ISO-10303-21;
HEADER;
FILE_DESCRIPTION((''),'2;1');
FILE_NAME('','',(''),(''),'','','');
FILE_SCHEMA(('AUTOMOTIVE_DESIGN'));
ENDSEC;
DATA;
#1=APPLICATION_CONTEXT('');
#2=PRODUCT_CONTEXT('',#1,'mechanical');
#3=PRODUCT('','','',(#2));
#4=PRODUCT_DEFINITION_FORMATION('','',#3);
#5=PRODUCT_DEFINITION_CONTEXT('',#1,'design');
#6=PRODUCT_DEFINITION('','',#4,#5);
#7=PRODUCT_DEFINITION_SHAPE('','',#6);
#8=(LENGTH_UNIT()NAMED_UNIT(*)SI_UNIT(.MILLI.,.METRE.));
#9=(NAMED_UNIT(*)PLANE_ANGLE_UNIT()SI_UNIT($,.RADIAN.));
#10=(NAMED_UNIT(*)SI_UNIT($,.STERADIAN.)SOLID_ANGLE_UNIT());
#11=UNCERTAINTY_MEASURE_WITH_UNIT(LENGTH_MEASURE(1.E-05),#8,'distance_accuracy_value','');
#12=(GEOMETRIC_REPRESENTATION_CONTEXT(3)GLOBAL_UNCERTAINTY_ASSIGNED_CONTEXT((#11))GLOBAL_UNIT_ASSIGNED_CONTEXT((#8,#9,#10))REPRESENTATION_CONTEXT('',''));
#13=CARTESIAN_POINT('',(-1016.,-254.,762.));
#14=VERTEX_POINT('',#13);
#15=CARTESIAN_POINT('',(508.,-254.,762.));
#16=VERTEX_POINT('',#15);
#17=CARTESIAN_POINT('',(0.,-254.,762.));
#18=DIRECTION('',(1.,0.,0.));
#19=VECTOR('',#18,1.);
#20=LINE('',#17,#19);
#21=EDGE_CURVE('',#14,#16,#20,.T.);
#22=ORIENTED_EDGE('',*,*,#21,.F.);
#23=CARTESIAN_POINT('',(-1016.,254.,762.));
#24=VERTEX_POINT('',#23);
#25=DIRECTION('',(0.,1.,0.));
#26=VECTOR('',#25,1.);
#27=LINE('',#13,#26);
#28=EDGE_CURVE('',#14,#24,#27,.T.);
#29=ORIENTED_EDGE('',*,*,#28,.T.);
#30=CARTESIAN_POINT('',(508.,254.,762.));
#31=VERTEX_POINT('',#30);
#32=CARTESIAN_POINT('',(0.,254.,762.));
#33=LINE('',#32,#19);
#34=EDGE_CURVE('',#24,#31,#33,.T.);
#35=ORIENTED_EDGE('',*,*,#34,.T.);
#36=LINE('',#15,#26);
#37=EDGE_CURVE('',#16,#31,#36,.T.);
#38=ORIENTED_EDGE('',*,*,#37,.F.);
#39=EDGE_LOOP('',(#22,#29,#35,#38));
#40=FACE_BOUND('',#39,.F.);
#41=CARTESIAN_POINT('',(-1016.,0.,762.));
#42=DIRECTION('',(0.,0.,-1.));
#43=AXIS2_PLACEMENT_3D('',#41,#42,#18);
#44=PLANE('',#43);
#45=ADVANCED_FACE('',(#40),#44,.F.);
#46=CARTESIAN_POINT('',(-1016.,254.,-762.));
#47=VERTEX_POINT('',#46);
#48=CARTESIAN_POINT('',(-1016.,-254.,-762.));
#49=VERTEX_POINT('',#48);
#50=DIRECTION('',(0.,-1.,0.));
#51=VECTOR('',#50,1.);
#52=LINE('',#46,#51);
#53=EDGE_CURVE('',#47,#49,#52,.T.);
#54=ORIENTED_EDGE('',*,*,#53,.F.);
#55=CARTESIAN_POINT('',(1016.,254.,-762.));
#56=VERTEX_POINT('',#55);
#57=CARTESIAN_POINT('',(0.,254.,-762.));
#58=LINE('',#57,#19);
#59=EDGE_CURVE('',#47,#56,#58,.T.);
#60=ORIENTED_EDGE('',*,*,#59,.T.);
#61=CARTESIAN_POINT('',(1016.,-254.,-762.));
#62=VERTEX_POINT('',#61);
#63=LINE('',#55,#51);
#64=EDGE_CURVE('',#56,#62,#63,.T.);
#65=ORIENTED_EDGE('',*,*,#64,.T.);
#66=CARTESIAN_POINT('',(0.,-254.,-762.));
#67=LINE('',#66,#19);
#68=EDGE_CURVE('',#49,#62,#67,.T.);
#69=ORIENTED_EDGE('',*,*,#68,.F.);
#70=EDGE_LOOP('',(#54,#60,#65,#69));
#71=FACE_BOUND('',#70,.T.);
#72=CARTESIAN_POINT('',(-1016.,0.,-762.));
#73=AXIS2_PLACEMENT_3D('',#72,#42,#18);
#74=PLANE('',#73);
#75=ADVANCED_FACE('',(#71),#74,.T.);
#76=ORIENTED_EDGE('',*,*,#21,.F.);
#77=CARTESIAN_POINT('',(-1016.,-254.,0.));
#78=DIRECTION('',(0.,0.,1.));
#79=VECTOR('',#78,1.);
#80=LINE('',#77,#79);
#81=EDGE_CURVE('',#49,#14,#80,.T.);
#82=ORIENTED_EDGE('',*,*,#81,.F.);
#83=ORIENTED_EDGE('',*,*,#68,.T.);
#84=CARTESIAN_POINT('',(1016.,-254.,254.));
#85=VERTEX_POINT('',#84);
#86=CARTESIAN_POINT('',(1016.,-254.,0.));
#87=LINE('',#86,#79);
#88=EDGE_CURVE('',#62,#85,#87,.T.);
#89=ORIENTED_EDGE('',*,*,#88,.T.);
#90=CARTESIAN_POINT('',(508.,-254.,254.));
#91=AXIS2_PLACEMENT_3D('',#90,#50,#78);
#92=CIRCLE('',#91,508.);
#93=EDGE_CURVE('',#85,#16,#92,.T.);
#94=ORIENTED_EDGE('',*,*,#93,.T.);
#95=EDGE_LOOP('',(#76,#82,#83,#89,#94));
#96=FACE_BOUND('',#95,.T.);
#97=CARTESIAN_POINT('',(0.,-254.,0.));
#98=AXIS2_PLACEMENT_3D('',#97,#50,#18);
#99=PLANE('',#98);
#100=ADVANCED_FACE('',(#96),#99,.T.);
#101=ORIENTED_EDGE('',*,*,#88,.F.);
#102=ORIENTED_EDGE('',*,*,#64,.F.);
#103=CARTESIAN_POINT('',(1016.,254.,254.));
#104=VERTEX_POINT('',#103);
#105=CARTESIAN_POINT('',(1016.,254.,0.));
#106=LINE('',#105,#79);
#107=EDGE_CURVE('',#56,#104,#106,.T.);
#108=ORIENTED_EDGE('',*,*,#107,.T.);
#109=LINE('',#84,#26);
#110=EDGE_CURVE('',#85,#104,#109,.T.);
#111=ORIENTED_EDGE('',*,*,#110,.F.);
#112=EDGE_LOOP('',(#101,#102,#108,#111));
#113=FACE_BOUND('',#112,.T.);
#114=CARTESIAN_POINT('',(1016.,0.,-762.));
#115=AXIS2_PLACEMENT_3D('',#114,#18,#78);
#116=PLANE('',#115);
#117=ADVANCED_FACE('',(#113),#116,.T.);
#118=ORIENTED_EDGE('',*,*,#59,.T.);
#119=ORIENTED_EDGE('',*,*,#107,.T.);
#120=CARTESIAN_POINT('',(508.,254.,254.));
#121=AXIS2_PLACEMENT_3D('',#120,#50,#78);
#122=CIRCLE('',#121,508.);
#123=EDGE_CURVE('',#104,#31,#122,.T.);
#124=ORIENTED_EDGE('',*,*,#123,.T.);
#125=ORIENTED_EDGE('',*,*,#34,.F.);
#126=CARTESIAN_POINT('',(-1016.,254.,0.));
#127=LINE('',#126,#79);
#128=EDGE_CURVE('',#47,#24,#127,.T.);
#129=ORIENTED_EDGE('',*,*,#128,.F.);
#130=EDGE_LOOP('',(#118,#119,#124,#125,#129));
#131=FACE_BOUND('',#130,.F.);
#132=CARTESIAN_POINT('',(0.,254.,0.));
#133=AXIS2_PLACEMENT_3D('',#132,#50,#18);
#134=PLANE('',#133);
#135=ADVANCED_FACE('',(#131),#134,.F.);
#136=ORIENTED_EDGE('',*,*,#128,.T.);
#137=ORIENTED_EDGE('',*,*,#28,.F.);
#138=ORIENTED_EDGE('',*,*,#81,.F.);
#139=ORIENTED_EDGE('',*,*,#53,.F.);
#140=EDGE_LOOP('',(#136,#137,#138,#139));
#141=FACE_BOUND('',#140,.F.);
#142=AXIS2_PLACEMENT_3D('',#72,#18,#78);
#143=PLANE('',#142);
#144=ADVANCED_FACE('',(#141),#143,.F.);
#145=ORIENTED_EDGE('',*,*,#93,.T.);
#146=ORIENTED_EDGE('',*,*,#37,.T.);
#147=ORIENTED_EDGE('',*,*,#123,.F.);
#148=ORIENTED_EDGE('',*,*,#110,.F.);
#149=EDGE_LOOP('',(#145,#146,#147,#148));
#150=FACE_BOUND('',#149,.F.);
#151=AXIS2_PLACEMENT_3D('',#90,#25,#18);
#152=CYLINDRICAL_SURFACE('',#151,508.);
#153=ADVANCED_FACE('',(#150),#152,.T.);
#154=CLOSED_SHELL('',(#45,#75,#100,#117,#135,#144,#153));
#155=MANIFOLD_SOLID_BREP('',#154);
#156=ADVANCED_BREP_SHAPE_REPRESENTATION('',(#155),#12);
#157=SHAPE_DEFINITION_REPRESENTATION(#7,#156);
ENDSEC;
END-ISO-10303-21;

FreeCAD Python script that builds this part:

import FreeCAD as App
import Part
import Sketcher

V = App.Vector
Q = App.Units.Quantity


def edges_at(feature, points):
    """Names of the edges that pass closest to the given points."""
    edges = feature.Shape.Edges
    near = lambda p: min(range(len(edges)), key=lambda i: edges[i].distToShape(Part.Vertex(*p))[0])
    return sorted({f"Edge{near(p) + 1}" for p in points})


def add_polygon(sketch, points):
    """Adds a closed chain of lines whose ends are joined by coincident constraints."""
    first, n = sketch.GeometryCount, len(points)
    for a, b in zip(points, points[1:] + points[:1]):
        sketch.addGeometry(Part.LineSegment(App.Vector(*a, 0), App.Vector(*b, 0)), False)
    for i in range(n):
        sketch.addConstraint(Sketcher.Constraint("Coincident", first + i, 2, first + (i + 1) % n, 1))

doc = App.newDocument("Part")
params = doc.addObject("Spreadsheet::Sheet", "Params")
for row, (alias, value) in enumerate([
    ("sketch1_width", "80 in"),
    ("sketch1_height", "60 in"),
    ("pad1_length", "20 in"),
    ("fillet_radius", "20 in"),
], start=1):
    params.set(f"A{row}", alias)
    params.set(f"B{row}", "=" + value)
    params.setAlias(f"B{row}", alias)

body = doc.addObject("PartDesign::Body", "Body")

sketch1 = body.newObject("Sketcher::SketchObject", "Sketch")
sketch1.AttachmentSupport = (doc.getObject("XZ_Plane"), [""])
sketch1.MapMode = "FlatFace"
add_polygon(sketch1, [(-1016, 762), (-1016, -762), (1016, -762), (1016, 762)])
sketch1.addConstraint(Sketcher.Constraint("Vertical", 0))
sketch1.addConstraint(Sketcher.Constraint("Horizontal", 1))
sketch1.addConstraint(Sketcher.Constraint("Vertical", 2))
sketch1.addConstraint(Sketcher.Constraint("Horizontal", 3))
sketch1.addConstraint(Sketcher.Constraint("Symmetric", 0, 2, 2, 2, -1, 1))
sketch1.addConstraint(Sketcher.Constraint("DistanceX", 1, 1, 1, 2, Q("80 in")))
sketch1.addConstraint(Sketcher.Constraint("DistanceY", 0, 2, 0, 1, Q("60 in")))
sketch1.setExpression("Constraints[9]", "Params.sketch1_width")
sketch1.setExpression("Constraints[10]", "Params.sketch1_height")
pad1 = body.newObject("PartDesign::Pad", "Pad")
pad1.Profile = sketch1
pad1.setExpression("Length", "Params.pad1_length")
pad1.Midplane = True
doc.recompute()

fillet = body.newObject("PartDesign::Fillet", "Fillet")
fillet.Base = (pad1, edges_at(pad1, [(1016, 0, 762)]))
fillet.setExpression("Radius", "Params.fillet_radius")

doc.recompute()
